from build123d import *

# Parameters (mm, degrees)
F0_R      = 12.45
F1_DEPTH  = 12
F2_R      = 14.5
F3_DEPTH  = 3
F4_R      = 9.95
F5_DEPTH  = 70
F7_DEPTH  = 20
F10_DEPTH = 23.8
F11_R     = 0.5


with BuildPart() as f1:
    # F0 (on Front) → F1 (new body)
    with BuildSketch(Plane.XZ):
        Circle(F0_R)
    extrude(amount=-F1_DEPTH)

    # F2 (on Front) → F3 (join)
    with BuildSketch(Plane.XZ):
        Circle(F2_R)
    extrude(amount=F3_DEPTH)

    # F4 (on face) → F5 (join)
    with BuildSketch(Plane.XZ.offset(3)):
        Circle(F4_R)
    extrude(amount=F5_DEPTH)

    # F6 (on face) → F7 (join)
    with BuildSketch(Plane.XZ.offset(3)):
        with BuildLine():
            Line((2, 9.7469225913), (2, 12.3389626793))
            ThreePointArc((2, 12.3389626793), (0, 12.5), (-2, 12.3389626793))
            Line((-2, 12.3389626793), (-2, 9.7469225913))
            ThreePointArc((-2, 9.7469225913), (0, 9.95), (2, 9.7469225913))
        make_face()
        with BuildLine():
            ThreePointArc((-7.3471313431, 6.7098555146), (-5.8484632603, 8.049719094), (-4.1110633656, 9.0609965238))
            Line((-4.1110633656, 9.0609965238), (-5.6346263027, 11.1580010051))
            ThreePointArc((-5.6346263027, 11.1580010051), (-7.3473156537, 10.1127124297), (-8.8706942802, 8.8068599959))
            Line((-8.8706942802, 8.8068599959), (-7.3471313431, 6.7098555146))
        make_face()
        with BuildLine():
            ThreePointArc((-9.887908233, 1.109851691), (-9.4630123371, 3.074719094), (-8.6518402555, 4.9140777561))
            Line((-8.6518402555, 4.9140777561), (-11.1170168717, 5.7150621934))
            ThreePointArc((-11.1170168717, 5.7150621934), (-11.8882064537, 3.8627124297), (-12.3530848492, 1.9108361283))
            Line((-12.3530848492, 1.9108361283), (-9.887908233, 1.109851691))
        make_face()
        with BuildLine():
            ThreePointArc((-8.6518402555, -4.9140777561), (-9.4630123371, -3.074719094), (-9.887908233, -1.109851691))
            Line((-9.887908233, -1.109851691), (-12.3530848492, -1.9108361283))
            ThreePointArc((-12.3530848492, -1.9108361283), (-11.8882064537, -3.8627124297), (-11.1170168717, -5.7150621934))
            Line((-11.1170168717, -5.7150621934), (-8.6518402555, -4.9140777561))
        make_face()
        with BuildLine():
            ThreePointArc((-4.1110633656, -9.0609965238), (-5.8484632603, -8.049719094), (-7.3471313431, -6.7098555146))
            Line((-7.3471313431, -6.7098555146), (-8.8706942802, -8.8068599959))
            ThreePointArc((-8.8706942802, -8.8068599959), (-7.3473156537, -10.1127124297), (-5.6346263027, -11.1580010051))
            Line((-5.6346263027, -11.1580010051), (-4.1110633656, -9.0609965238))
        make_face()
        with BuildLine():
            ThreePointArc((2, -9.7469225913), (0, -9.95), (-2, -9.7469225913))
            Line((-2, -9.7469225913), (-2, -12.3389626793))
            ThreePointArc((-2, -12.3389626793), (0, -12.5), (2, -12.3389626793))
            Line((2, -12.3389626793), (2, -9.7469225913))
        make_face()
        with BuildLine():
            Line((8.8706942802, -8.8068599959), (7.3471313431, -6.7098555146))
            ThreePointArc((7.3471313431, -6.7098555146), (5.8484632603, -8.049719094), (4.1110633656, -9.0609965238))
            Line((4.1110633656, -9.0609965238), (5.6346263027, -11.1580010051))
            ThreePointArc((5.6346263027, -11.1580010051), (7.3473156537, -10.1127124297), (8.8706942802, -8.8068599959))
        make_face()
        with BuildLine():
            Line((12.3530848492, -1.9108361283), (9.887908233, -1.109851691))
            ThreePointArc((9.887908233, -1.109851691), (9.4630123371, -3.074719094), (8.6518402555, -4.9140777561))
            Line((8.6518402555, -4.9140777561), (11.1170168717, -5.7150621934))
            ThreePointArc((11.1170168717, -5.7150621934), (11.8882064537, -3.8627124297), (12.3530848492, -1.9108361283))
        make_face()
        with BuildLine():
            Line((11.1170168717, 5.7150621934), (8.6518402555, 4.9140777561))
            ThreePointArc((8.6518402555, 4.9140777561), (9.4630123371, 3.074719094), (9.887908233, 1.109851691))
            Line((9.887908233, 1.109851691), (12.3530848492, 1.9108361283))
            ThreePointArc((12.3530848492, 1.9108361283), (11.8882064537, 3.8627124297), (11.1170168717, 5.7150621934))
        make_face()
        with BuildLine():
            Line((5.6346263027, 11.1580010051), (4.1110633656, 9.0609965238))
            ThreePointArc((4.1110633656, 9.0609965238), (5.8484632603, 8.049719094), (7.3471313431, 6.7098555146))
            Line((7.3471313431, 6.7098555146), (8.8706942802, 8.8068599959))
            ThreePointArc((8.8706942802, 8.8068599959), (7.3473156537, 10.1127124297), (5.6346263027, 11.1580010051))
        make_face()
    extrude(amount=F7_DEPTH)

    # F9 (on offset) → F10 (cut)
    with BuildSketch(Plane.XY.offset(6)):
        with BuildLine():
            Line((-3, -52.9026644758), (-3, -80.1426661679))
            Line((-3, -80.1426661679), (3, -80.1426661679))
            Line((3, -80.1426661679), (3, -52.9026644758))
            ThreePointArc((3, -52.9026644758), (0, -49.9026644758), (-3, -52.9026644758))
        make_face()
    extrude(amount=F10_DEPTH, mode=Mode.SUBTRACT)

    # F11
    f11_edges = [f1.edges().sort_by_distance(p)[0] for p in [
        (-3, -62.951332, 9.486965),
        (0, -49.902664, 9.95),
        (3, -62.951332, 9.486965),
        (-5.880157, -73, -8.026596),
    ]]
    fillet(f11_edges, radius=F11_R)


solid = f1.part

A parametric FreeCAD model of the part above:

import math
import FreeCAD as App
import Part
import Sketcher
Q = App.Units.Quantity


def edges_at(feature, points):
    """Names of the edges that pass closest to the given points."""
    edges = feature.Shape.Edges
    near = lambda p: min(range(len(edges)), key=lambda i: edges[i].distToShape(Part.Vertex(*p))[0])
    return sorted({f"Edge{near(p) + 1}" for p in points})

doc = App.newDocument("Part")
body = doc.addObject("PartDesign::Body", "Body")

# Sketch on XZ plane
sketch1 = body.newObject("Sketcher::SketchObject", "Sketch")
sketch1.AttachmentSupport = (doc.getObject("XZ_Plane"), [""])
sketch1.MapMode = "FlatFace"
sketch1.addGeometry(Part.Circle(App.Vector(0, 0, 0), App.Vector(0, 0, 1), 12), False)
sketch1.addConstraint([
    Sketcher.Constraint("Coincident", 0, 3, -1, 1),
    Sketcher.Constraint("Diameter", 0, 24.9),
])
pad1 = body.newObject("PartDesign::Pad", "Pad")
pad1.Profile = sketch1
pad1.Length = 12
pad1.Reversed = True

# Sketch on XZ plane
sketch2 = body.newObject("Sketcher::SketchObject", "Sketch001")
sketch2.AttachmentSupport = (doc.getObject("XZ_Plane"), [""])
sketch2.MapMode = "FlatFace"
sketch2.addGeometry(Part.Circle(App.Vector(0, 0, 0), App.Vector(0, 0, 1), 14), False)
sketch2.addConstraint([
    Sketcher.Constraint("Coincident", 0, 3, -1, 1),
    Sketcher.Constraint("Diameter", 0, 29.0),
])
pad2 = body.newObject("PartDesign::Pad", "Pad001")
pad2.Profile = sketch2
pad2.Length = 3

# Sketch on XZ plane
sketch3 = body.newObject("Sketcher::SketchObject", "Sketch002")
sketch3.AttachmentSupport = (doc.getObject("XZ_Plane"), [""])
sketch3.MapMode = "FlatFace"
sketch3.AttachmentOffset = App.Placement(App.Vector(0, 0, 3), App.Rotation())
sketch3.addGeometry(Part.Circle(App.Vector(0, 0, 0), App.Vector(0, 0, 1), 10), False)
sketch3.addConstraint([
    Sketcher.Constraint("Coincident", 0, 3, -1, 1),
    Sketcher.Constraint("Diameter", 0, 19.9),
])
pad3 = body.newObject("PartDesign::Pad", "Pad002")
pad3.Profile = sketch3
pad3.Length = 70

# Sketch on XZ plane
sketch4 = body.newObject("Sketcher::SketchObject", "Sketch003")
sketch4.AttachmentSupport = (doc.getObject("XZ_Plane"), [""])
sketch4.MapMode = "FlatFace"
sketch4.AttachmentOffset = App.Placement(App.Vector(0, 0, 3), App.Rotation())
sketch4.addGeometry([
    Part.LineSegment(App.Vector(2, 9.7, 0), App.Vector(2, 12.3, 0)),  # 0
    Part.ArcOfCircle(Part.Circle(App.Vector(0, 0, 0), App.Vector(0, 0, 1), 12.5), math.radians(80.79), math.radians(99.21)),  # 1
    Part.LineSegment(App.Vector(-2, 12.3, 0), App.Vector(-2, 9.7, 0)),  # 2
    Part.ArcOfCircle(Part.Circle(App.Vector(0, 0, 0), App.Vector(0, 0, 1), 10), math.radians(78), math.radians(102)),  # 3
    Part.ArcOfCircle(Part.Circle(App.Vector(0, 0, 0), App.Vector(0, 0, 1), 10), math.radians(114), math.radians(138)),  # 4
    Part.LineSegment(App.Vector(-4.1, 9.1, 0), App.Vector(-5.6, 11.2, 0)),  # 5
    Part.ArcOfCircle(Part.Circle(App.Vector(0, 0, 0), App.Vector(0, 0, 1), 12.5), math.radians(116.79), math.radians(135.21)),  # 6
    Part.LineSegment(App.Vector(-8.9, 8.8, 0), App.Vector(-7.3, 6.7, 0)),  # 7
    Part.ArcOfCircle(Part.Circle(App.Vector(0, 0, 0), App.Vector(0, 0, 1), 10), math.radians(150), math.radians(174)),  # 8
    Part.LineSegment(App.Vector(-8.7, 4.9, 0), App.Vector(-11.1, 5.7, 0)),  # 9
    Part.ArcOfCircle(Part.Circle(App.Vector(0, 0, 0), App.Vector(0, 0, 1), 12.5), math.radians(152.79), math.radians(171.21)),  # 10
    Part.LineSegment(App.Vector(-12.4, 1.9, 0), App.Vector(-9.9, 1.1, 0)),  # 11
    Part.ArcOfCircle(Part.Circle(App.Vector(0, 0, 0), App.Vector(0, 0, 1), 10), math.radians(-174), math.radians(-150)),  # 12
    Part.LineSegment(App.Vector(-9.9, -1.1, 0), App.Vector(-12.4, -1.9, 0)),  # 13
    Part.ArcOfCircle(Part.Circle(App.Vector(0, 0, 0), App.Vector(0, 0, 1), 12.5), math.radians(-171.21), math.radians(-152.79)),  # 14
    Part.LineSegment(App.Vector(-11.1, -5.7, 0), App.Vector(-8.7, -4.9, 0)),  # 15
    Part.ArcOfCircle(Part.Circle(App.Vector(0, 0, 0), App.Vector(0, 0, 1), 10), math.radians(-138), math.radians(-114)),  # 16
    Part.LineSegment(App.Vector(-7.3, -6.7, 0), App.Vector(-8.9, -8.8, 0)),  # 17
    Part.ArcOfCircle(Part.Circle(App.Vector(0, 0, 0), App.Vector(0, 0, 1), 12.5), math.radians(-135.21), math.radians(-116.79)),  # 18
    Part.LineSegment(App.Vector(-5.6, -11.2, 0), App.Vector(-4.1, -9.1, 0)),  # 19
    Part.ArcOfCircle(Part.Circle(App.Vector(0, 0, 0), App.Vector(0, 0, 1), 10), math.radians(-102), math.radians(-78)),  # 20
    Part.LineSegment(App.Vector(-2, -9.7, 0), App.Vector(-2, -12.3, 0)),  # 21
    Part.ArcOfCircle(Part.Circle(App.Vector(0, 0, 0), App.Vector(0, 0, 1), 12.5), math.radians(-99.21), math.radians(-80.79)),  # 22
    Part.LineSegment(App.Vector(2, -12.3, 0), App.Vector(2, -9.7, 0)),  # 23
    Part.LineSegment(App.Vector(8.9, -8.8, 0), App.Vector(7.3, -6.7, 0)),  # 24
    Part.ArcOfCircle(Part.Circle(App.Vector(0, 0, 0), App.Vector(0, 0, 1), 10), math.radians(-66), math.radians(-42)),  # 25
    Part.LineSegment(App.Vector(4.1, -9.1, 0), App.Vector(5.6, -11.2, 0)),  # 26
    Part.ArcOfCircle(Part.Circle(App.Vector(0, 0, 0), App.Vector(0, 0, 1), 12.5), math.radians(-63.21), math.radians(-44.79)),  # 27
    Part.LineSegment(App.Vector(12.4, -1.9, 0), App.Vector(9.9, -1.1, 0)),  # 28
    Part.ArcOfCircle(Part.Circle(App.Vector(0, 0, 0), App.Vector(0, 0, 1), 10), math.radians(-30), math.radians(-6)),  # 29
    Part.LineSegment(App.Vector(8.7, -4.9, 0), App.Vector(11.1, -5.7, 0)),  # 30
    Part.ArcOfCircle(Part.Circle(App.Vector(0, 0, 0), App.Vector(0, 0, 1), 12.5), math.radians(-27.21), math.radians(-8.79)),  # 31
    Part.LineSegment(App.Vector(11.1, 5.7, 0), App.Vector(8.7, 4.9, 0)),  # 32
    Part.ArcOfCircle(Part.Circle(App.Vector(0, 0, 0), App.Vector(0, 0, 1), 10), math.radians(6), math.radians(30)),  # 33
    Part.LineSegment(App.Vector(9.9, 1.1, 0), App.Vector(12.4, 1.9, 0)),  # 34
    Part.ArcOfCircle(Part.Circle(App.Vector(0, 0, 0), App.Vector(0, 0, 1), 12.5), math.radians(8.79), math.radians(27.21)),  # 35
    Part.LineSegment(App.Vector(5.6, 11.2, 0), App.Vector(4.1, 9.1, 0)),  # 36
    Part.ArcOfCircle(Part.Circle(App.Vector(0, 0, 0), App.Vector(0, 0, 1), 10), math.radians(42), math.radians(66)),  # 37
    Part.LineSegment(App.Vector(7.3, 6.7, 0), App.Vector(8.9, 8.8, 0)),  # 38
    Part.ArcOfCircle(Part.Circle(App.Vector(0, 0, 0), App.Vector(0, 0, 1), 12.5), math.radians(44.79), math.radians(63.21)),  # 39
], False)
sketch4.addConstraint([
    Sketcher.Constraint("Coincident", 0, 2, 1, 1),
    Sketcher.Constraint("Coincident", 1, 2, 2, 1),
    Sketcher.Constraint("Coincident", 2, 2, 3, 2),
    Sketcher.Constraint("Coincident", 3, 1, 0, 1),
    Sketcher.Constraint("Coincident", 4, 1, 5, 1),
    Sketcher.Constraint("Coincident", 5, 2, 6, 1),
    Sketcher.Constraint("Coincident", 6, 2, 7, 1),
    Sketcher.Constraint("Coincident", 7, 2, 4, 2),
    Sketcher.Constraint("Coincident", 8, 1, 9, 1),
    Sketcher.Constraint("Coincident", 9, 2, 10, 1),
    Sketcher.Constraint("Coincident", 10, 2, 11, 1),
    Sketcher.Constraint("Coincident", 11, 2, 8, 2),
    Sketcher.Constraint("Coincident", 12, 1, 13, 1),
    Sketcher.Constraint("Coincident", 13, 2, 14, 1),
    Sketcher.Constraint("Coincident", 14, 2, 15, 1),
    Sketcher.Constraint("Coincident", 15, 2, 12, 2),
    Sketcher.Constraint("Coincident", 16, 1, 17, 1),
    Sketcher.Constraint("Coincident", 17, 2, 18, 1),
    Sketcher.Constraint("Coincident", 18, 2, 19, 1),
    Sketcher.Constraint("Coincident", 19, 2, 16, 2),
    Sketcher.Constraint("Coincident", 20, 1, 21, 1),
    Sketcher.Constraint("Coincident", 21, 2, 22, 1),
    Sketcher.Constraint("Coincident", 22, 2, 23, 1),
    Sketcher.Constraint("Coincident", 23, 2, 20, 2),
    Sketcher.Constraint("Coincident", 24, 2, 25, 2),
    Sketcher.Constraint("Coincident", 25, 1, 26, 1),
    Sketcher.Constraint("Coincident", 26, 2, 27, 1),
    Sketcher.Constraint("Coincident", 27, 2, 24, 1),
    Sketcher.Constraint("Coincident", 28, 2, 29, 2),
    Sketcher.Constraint("Coincident", 29, 1, 30, 1),
    Sketcher.Constraint("Coincident", 30, 2, 31, 1),
    Sketcher.Constraint("Coincident", 31, 2, 28, 1),
    Sketcher.Constraint("Coincident", 32, 2, 33, 2),
    Sketcher.Constraint("Coincident", 33, 1, 34, 1),
    Sketcher.Constraint("Coincident", 34, 2, 35, 1),
    Sketcher.Constraint("Coincident", 35, 2, 32, 1),
    Sketcher.Constraint("Coincident", 36, 2, 37, 2),
    Sketcher.Constraint("Coincident", 37, 1, 38, 1),
    Sketcher.Constraint("Coincident", 38, 2, 39, 1),
    Sketcher.Constraint("Coincident", 39, 2, 36, 1),
    Sketcher.Constraint("Vertical", 0),
    Sketcher.Constraint("Vertical", 2),
    Sketcher.Constraint("Vertical", 21),
    Sketcher.Constraint("Vertical", 23),
    Sketcher.Constraint("Coincident", 1, 3, -1, 1),
    Sketcher.Constraint("Coincident", 3, 3, -1, 1),
    Sketcher.Constraint("Coincident", 4, 3, -1, 1),
    Sketcher.Constraint("Coincident", 6, 3, -1, 1),
    Sketcher.Constraint("Coincident", 8, 3, -1, 1),
    Sketcher.Constraint("Coincident", 10, 3, -1, 1),
    Sketcher.Constraint("Coincident", 12, 3, -1, 1),
    Sketcher.Constraint("Coincident", 14, 3, -1, 1),
    Sketcher.Constraint("Coincident", 16, 3, -1, 1),
    Sketcher.Constraint("Coincident", 18, 3, -1, 1),
    Sketcher.Constraint("Coincident", 20, 3, -1, 1),
    Sketcher.Constraint("Coincident", 22, 3, -1, 1),
    Sketcher.Constraint("Coincident", 25, 3, -1, 1),
    Sketcher.Constraint("Coincident", 27, 3, -1, 1),
    Sketcher.Constraint("Coincident", 29, 3, -1, 1),
    Sketcher.Constraint("Coincident", 31, 3, -1, 1),
    Sketcher.Constraint("Coincident", 33, 3, -1, 1),
    Sketcher.Constraint("Coincident", 35, 3, -1, 1),
    Sketcher.Constraint("Coincident", 37, 3, -1, 1),
    Sketcher.Constraint("Coincident", 39, 3, -1, 1),
    Sketcher.Constraint("Equal", 3, 4),
    Sketcher.Constraint("Equal", 1, 6),
    Sketcher.Constraint("Equal", 4, 8),
    Sketcher.Constraint("Equal", 6, 10),
    Sketcher.Constraint("Equal", 8, 12),
    Sketcher.Constraint("Equal", 10, 14),
    Sketcher.Constraint("Equal", 12, 16),
    Sketcher.Constraint("Equal", 14, 18),
    Sketcher.Constraint("Equal", 16, 20),
    Sketcher.Constraint("Equal", 18, 22),
    Sketcher.Constraint("Equal", 20, 25),
    Sketcher.Constraint("Equal", 22, 27),
    Sketcher.Constraint("Equal", 25, 29),
    Sketcher.Constraint("Equal", 27, 31),
    Sketcher.Constraint("Equal", 29, 33),
    Sketcher.Constraint("Equal", 31, 35),
    Sketcher.Constraint("Equal", 33, 37),
    Sketcher.Constraint("Equal", 35, 39),
    Sketcher.Constraint("Parallel", 5, 7),
    Sketcher.Constraint("Parallel", 9, 11),
    Sketcher.Constraint("Parallel", 13, 15),
    Sketcher.Constraint("Parallel", 17, 19),
    Sketcher.Constraint("Parallel", 7, 24),
    Sketcher.Constraint("Parallel", 24, 26),
    Sketcher.Constraint("Parallel", 11, 28),
    Sketcher.Constraint("Parallel", 28, 30),
    Sketcher.Constraint("Parallel", 15, 32),
    Sketcher.Constraint("Parallel", 32, 34),
    Sketcher.Constraint("Parallel", 19, 36),
    Sketcher.Constraint("Parallel", 36, 38),
    Sketcher.Constraint("Horizontal", 0, 2, 1, 2),
    Sketcher.Constraint("Horizontal", 21, 2, 22, 2),
    Sketcher.Constraint("Horizontal", 16, 1, 24, 2),
    Sketcher.Constraint("Horizontal", 19, 2, 25, 1),
    Sketcher.Constraint("Horizontal", 18, 2, 26, 2),
    Sketcher.Constraint("Horizontal", 12, 1, 28, 2),
    Sketcher.Constraint("Horizontal", 15, 2, 29, 1),
    Sketcher.Constraint("Horizontal", 14, 2, 30, 2),
    Sketcher.Constraint("Horizontal", 8, 1, 32, 2),
    Sketcher.Constraint("Horizontal", 11, 2, 33, 1),
    Sketcher.Constraint("Horizontal", 4, 1, 36, 2),
    Sketcher.Constraint("Horizontal", 7, 2, 37, 1),
    Sketcher.Constraint("Vertical", 11, 2, 12, 1),
    Sketcher.Constraint("Vertical", 9, 2, 14, 2),
    Sketcher.Constraint("Vertical", 7, 2, 16, 1),
    Sketcher.Constraint("Vertical", 5, 2, 18, 2),
    Sketcher.Constraint("Vertical", 2, 2, 20, 1),
    Sketcher.Constraint("Equal", 5, 7),
    Sketcher.Constraint("Equal", 7, 9),
    Sketcher.Constraint("Equal", 9, 11),
    Sketcher.Constraint("Radius", 1, 12.5),
    Sketcher.Constraint("Angle", 5, Q("126 deg")),
    Sketcher.Constraint("Angle", 9, Q("162 deg")),
    Sketcher.Constraint("Radius", 3, 9.95),
    Sketcher.Constraint("DistanceX", -1, 1, 0, 2, 2.0),
    Sketcher.Constraint("DistanceY", -1, 1, 5, 2, 11.158001),
])
pad4 = body.newObject("PartDesign::Pad", "Pad003")
pad4.Profile = sketch4
pad4.Length = 20

# Sketch on XY plane
sketch5 = body.newObject("Sketcher::SketchObject", "Sketch004")
sketch5.AttachmentSupport = (doc.getObject("XY_Plane"), [""])
sketch5.MapMode = "FlatFace"
sketch5.AttachmentOffset = App.Placement(App.Vector(0, 0, 6), App.Rotation())
sketch5.addGeometry([
    Part.LineSegment(App.Vector(-3, -52.9, 0), App.Vector(-3, -80.1, 0)),
    Part.LineSegment(App.Vector(-3, -80.1, 0), App.Vector(3, -80.1, 0)),
    Part.LineSegment(App.Vector(3, -80.1, 0), App.Vector(3, -52.9, 0)),
    Part.ArcOfCircle(Part.Circle(App.Vector(0, -52.9, 0), App.Vector(0, 0, 1), 3), math.radians(0), math.radians(180)),
], False)
sketch5.addConstraint([
    Sketcher.Constraint("Coincident", 0, 2, 1, 1),
    Sketcher.Constraint("Coincident", 1, 2, 2, 1),
    Sketcher.Constraint("Tangent", 2, 2, 3, 1),
    Sketcher.Constraint("Tangent", 3, 2, 0, 1),
    Sketcher.Constraint("Vertical", 0),
    Sketcher.Constraint("Horizontal", 1),
    Sketcher.Constraint("Vertical", 2),
    Sketcher.Constraint("PointOnObject", 3, 3, -2),
    Sketcher.Constraint("Radius", 3, 3.0),
    Sketcher.Constraint("DistanceY", 0, 2, 0, 1, 27.240002),
    Sketcher.Constraint("DistanceY", 3, 3, -1, 1, 52.902664),
])
pocket1 = body.newObject("PartDesign::Pocket", "Pocket")
pocket1.Profile = sketch5
pocket1.Length = 23.8
pocket1.Reversed = True
doc.recompute()

fillet = body.newObject("PartDesign::Fillet", "Fillet")
fillet.Base = (pocket1, edges_at(pocket1, [
    (-3, -62.951, 9.487),
    (0, -49.903, 9.95),
    (3, -62.951, 9.487),
    (-5.88, -73, -8.027),
]))
fillet.Radius = 0.5

doc.recompute()
